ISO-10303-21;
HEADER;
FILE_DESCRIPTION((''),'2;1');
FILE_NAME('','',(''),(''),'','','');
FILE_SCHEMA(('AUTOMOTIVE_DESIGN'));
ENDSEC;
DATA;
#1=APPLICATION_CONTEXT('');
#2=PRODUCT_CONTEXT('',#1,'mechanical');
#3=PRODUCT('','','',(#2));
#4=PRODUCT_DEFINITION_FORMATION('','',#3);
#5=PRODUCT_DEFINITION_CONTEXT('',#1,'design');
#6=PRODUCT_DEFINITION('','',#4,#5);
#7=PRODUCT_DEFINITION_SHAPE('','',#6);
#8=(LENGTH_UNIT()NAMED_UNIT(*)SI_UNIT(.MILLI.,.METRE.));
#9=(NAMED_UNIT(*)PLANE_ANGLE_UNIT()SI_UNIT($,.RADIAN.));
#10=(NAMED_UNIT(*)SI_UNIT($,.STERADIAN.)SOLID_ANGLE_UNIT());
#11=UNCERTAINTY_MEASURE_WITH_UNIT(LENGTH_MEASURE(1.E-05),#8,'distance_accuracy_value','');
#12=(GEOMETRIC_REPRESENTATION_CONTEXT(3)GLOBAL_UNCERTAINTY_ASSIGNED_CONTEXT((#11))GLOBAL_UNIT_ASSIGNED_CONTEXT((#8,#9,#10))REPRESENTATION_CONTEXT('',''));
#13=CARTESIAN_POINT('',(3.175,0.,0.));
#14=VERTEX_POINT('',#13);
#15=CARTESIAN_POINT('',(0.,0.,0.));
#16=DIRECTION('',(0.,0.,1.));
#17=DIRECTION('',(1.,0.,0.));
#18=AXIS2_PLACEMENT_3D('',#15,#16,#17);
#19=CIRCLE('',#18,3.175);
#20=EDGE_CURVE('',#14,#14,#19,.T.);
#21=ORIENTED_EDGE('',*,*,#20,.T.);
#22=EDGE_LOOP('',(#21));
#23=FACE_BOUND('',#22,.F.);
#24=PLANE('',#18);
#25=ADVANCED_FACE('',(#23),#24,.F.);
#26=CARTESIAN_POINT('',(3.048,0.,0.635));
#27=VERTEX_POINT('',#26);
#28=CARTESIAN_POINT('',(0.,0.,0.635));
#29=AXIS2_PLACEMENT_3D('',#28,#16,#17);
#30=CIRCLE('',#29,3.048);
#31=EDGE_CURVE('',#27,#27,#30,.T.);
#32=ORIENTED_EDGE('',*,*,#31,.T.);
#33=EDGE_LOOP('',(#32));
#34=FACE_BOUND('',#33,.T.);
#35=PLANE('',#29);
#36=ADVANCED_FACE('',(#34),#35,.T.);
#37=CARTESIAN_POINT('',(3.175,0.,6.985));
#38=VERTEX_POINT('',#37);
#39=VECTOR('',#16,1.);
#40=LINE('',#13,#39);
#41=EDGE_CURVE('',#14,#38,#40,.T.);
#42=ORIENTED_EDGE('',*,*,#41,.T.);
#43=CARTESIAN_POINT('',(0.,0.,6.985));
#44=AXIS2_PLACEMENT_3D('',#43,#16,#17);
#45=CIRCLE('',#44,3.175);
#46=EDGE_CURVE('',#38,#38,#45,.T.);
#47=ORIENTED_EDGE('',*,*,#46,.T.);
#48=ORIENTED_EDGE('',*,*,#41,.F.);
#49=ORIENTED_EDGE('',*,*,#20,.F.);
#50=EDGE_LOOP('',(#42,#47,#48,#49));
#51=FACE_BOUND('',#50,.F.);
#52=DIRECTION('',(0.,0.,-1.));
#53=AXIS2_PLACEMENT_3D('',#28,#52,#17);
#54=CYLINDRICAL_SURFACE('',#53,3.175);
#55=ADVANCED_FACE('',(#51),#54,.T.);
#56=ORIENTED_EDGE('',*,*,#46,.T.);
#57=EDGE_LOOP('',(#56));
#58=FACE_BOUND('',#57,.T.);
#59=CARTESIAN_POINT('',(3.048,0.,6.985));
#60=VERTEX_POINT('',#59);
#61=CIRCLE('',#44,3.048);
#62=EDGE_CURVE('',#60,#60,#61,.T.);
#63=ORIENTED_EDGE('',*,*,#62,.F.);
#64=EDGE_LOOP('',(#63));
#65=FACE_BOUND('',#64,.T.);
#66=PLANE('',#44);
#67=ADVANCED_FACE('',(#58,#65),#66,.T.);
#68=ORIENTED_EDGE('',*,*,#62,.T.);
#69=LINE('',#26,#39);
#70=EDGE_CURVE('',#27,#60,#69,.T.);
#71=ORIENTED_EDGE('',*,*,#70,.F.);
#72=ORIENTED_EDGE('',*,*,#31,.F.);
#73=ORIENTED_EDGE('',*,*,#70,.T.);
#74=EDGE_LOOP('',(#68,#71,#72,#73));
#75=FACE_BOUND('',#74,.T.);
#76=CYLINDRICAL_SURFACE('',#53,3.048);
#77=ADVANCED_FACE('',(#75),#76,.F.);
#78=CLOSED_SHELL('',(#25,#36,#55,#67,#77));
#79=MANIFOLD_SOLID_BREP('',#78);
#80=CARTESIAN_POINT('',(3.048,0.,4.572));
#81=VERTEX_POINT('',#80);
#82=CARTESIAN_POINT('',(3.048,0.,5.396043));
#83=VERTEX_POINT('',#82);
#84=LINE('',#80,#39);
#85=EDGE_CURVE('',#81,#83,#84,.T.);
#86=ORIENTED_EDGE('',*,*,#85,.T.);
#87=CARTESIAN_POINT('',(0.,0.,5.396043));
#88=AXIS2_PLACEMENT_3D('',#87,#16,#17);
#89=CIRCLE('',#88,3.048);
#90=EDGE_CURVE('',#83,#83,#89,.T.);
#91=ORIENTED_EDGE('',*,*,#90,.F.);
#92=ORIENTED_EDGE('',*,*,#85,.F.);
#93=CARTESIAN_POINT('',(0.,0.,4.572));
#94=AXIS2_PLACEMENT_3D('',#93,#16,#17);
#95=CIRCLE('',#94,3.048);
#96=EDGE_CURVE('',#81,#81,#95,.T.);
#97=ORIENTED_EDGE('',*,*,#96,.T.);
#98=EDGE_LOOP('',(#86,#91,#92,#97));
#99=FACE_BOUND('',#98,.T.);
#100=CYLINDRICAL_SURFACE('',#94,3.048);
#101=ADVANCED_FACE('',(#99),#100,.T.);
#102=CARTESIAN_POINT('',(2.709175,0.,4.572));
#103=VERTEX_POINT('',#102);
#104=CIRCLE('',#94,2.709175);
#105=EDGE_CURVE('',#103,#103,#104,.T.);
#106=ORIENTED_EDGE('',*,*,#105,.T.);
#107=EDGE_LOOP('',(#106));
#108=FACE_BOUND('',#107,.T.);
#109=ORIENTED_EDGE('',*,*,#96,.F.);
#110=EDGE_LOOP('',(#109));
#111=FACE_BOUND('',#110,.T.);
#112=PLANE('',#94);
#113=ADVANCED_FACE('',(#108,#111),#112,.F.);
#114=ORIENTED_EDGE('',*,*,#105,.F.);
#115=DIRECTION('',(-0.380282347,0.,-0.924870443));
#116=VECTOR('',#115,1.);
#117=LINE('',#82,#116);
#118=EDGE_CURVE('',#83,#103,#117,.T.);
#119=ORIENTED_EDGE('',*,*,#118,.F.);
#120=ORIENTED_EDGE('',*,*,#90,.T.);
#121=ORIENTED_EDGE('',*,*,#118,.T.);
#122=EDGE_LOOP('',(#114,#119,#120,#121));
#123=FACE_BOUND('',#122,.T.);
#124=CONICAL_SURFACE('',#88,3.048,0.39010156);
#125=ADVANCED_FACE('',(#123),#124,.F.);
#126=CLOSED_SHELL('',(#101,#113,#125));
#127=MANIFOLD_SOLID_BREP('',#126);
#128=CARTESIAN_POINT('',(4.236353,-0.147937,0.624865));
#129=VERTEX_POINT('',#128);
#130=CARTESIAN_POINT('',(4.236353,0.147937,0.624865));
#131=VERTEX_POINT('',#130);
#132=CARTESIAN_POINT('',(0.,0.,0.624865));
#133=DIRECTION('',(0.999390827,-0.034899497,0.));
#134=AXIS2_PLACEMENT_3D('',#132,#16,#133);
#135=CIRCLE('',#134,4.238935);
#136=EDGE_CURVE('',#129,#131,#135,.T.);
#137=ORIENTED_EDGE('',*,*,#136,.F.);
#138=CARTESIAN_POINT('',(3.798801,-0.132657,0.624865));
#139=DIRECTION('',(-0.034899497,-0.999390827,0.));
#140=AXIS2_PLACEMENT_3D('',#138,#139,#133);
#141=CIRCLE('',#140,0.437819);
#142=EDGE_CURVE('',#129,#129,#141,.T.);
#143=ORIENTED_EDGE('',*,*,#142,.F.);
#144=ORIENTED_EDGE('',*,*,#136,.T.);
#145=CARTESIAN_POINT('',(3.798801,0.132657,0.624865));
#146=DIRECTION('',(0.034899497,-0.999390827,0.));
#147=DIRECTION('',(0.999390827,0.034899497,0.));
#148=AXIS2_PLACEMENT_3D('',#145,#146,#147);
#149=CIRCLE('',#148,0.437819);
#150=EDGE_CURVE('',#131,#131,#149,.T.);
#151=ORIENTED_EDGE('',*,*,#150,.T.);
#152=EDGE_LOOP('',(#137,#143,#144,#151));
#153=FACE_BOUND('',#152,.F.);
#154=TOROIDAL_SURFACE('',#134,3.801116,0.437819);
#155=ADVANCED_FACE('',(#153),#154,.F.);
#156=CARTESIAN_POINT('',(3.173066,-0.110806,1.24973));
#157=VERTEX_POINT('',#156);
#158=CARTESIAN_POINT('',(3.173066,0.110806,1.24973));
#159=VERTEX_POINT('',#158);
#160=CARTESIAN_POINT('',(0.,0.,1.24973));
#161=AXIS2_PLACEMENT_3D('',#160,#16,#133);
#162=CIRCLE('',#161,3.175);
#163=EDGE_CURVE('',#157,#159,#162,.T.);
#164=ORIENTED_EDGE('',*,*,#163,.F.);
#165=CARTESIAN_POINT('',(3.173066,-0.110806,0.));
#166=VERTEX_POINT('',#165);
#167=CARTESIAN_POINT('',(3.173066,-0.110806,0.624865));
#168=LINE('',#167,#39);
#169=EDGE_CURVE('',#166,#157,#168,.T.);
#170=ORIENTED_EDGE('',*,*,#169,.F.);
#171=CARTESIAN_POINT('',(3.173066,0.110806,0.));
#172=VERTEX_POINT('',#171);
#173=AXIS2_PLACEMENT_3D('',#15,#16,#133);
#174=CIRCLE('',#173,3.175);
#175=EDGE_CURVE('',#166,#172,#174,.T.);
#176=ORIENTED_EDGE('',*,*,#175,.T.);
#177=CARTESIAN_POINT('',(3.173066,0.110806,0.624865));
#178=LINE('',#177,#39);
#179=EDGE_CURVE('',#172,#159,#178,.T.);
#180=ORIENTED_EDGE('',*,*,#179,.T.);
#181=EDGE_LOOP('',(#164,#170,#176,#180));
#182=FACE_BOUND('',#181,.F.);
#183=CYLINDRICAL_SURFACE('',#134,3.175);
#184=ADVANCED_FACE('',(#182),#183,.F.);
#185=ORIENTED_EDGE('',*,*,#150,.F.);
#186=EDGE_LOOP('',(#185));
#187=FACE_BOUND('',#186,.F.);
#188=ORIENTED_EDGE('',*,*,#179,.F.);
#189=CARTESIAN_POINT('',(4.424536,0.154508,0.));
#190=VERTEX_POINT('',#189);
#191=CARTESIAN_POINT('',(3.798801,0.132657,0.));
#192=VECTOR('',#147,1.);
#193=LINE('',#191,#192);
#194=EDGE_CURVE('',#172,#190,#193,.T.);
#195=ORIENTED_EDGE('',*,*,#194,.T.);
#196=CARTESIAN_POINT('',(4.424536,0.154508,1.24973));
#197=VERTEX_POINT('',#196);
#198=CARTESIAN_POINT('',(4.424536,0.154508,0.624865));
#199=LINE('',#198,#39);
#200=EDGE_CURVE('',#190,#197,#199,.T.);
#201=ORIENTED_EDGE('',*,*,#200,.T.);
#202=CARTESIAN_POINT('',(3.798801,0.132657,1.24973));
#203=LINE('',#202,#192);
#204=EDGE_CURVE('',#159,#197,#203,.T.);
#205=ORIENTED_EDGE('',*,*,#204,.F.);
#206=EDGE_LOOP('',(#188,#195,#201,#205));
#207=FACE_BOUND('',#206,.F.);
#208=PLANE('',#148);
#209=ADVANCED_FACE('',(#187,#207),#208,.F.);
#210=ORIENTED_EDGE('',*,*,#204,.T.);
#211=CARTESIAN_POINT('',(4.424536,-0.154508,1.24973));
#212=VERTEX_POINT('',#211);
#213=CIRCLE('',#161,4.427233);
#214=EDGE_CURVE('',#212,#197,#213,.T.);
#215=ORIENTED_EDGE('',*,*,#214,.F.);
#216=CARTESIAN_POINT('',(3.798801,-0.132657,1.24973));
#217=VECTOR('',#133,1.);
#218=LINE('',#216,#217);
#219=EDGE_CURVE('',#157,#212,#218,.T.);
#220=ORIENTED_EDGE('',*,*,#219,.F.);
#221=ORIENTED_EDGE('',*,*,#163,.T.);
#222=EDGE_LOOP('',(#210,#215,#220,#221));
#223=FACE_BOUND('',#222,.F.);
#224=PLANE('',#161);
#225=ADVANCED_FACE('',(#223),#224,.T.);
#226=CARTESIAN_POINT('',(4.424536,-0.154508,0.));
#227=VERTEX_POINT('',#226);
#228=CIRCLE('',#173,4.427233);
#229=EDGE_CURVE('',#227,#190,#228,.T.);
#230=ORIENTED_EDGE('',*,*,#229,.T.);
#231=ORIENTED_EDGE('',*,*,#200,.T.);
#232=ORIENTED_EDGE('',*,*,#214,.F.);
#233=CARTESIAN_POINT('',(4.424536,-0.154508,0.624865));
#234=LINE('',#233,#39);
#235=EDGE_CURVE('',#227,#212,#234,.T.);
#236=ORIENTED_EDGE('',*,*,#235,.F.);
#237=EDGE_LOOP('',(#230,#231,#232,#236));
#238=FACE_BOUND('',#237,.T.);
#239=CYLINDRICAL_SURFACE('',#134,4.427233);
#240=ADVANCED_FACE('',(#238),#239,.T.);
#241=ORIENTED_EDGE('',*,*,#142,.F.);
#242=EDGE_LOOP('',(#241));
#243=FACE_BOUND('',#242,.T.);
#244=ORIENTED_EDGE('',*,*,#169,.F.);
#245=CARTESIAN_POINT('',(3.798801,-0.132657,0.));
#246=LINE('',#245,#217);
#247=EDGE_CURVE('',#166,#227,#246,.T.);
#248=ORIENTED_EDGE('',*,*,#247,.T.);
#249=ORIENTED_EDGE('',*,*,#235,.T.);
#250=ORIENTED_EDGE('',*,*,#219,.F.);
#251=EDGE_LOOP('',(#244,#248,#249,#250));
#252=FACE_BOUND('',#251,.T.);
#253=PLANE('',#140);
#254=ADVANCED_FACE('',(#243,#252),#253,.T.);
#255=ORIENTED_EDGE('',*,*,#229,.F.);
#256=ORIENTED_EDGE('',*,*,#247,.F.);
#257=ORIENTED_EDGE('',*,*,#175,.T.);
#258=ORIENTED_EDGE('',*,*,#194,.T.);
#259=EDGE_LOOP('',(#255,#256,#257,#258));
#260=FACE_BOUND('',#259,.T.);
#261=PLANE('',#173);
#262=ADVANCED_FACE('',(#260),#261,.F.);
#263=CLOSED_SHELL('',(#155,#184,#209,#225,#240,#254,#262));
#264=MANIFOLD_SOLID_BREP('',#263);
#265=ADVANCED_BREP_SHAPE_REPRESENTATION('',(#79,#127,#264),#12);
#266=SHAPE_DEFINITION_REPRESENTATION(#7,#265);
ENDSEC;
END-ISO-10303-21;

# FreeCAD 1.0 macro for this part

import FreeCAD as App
import Part
import Sketcher
from FreeCAD import Vector
Q = App.Units.Quantity

doc = App.newDocument("Part")
body = doc.addObject("PartDesign::Body", "Body")

# Sketch on XY plane
sketch1 = body.newObject("Sketcher::SketchObject", "Sketch")
sketch1.AttachmentSupport = (doc.getObject("XY_Plane"), [""])
sketch1.MapMode = "FlatFace"
sketch1.addGeometry(Part.Circle(Vector(0, 0, 0), Vector(0, 0, 1), 3.2), False)
sketch1.addConstraint(Sketcher.Constraint("Coincident", 0, 3, -1, 1))
sketch1.addConstraint(Sketcher.Constraint("Diameter", 0, Q("0.25 in")))
pad1 = body.newObject("PartDesign::Pad", "Pad")
pad1.Profile = sketch1
pad1.Length = Q("0.025 in")

# Sketch on XY plane
sketch2 = body.newObject("Sketcher::SketchObject", "Sketch001")
sketch2.AttachmentSupport = (doc.getObject("XY_Plane"), [""])
sketch2.MapMode = "FlatFace"
sketch2.AttachmentOffset = App.Placement(Vector(0, 0, 0.025 * 25.4), App.Rotation())
sketch2.addGeometry(Part.Circle(Vector(0, 0, 0), Vector(0, 0, 1), 3.2), False)
sketch2.addGeometry(Part.Circle(Vector(0, 0, 0), Vector(0, 0, 1), 3), False)
sketch2.addConstraint(Sketcher.Constraint("Coincident", 0, 3, -1, 1))
sketch2.addConstraint(Sketcher.Constraint("Coincident", 1, 3, -1, 1))
sketch2.addConstraint(Sketcher.Constraint("Diameter", 0, Q("0.25 in")))
sketch2.addConstraint(Sketcher.Constraint("Diameter", 1, Q("0.24 in")))
pad2 = body.newObject("PartDesign::Pad", "Pad001")
pad2.Profile = sketch2
pad2.Length = Q("0.25 in")
body2 = doc.addObject("PartDesign::Body", "Body001")

# Sketch on XZ plane
sketch3 = body2.newObject("Sketcher::SketchObject", "Sketch002")
sketch3.AttachmentSupport = (doc.getObject("XZ_Plane001"), [""])
sketch3.MapMode = "FlatFace"
sketch3.addGeometry(Part.LineSegment(Vector(3.05, 4.57, 0), Vector(3.05, 5.4, 0)), False)
sketch3.addGeometry(Part.LineSegment(Vector(3.05, 5.4, 0), Vector(2.71, 4.57, 0)), False)
sketch3.addGeometry(Part.LineSegment(Vector(2.71, 4.57, 0), Vector(3.05, 4.57, 0)), False)
sketch3.addConstraint(Sketcher.Constraint("Coincident", 0, 2, 1, 1))
sketch3.addConstraint(Sketcher.Constraint("Coincident", 1, 2, 2, 1))
sketch3.addConstraint(Sketcher.Constraint("Coincident", 2, 2, 0, 1))
sketch3.addConstraint(Sketcher.Constraint("Vertical", 0))
sketch3.addConstraint(Sketcher.Constraint("Horizontal", 2))
sketch3.addConstraint(Sketcher.Constraint("DistanceX", -1, 1, 0, 2, Q("0.12 in")))
sketch3.addConstraint(Sketcher.Constraint("DistanceY", -1, 1, 1, 2, Q("0.18 in")))
sketch3.addConstraint(Sketcher.Constraint("DistanceX", 2, 1, 2, 2, Q("0.338825 mm")))
sketch3.addConstraint(Sketcher.Constraint("DistanceY", 0, 1, 0, 2, Q("0.824043 mm")))
revolution = body2.newObject("PartDesign::Revolution", "Revolution")
revolution.Profile = sketch3
revolution.ReferenceAxis = (sketch3, ["V_Axis"])
revolution.Angle = 360
body3 = doc.addObject("PartDesign::Body", "Body002")

# Sketch on an angled plane
sketch4 = body3.newObject("Sketcher::SketchObject", "Sketch003")
sketch4.Placement = App.Placement(Vector(0, 0, 0), App.Rotation(Vector(0.999390827, -0.034899497, 0), Vector(0, 0, 1), Vector(-0.034899497, -0.999390827, 0), "ZXY"))
sketch4.addGeometry(Part.LineSegment(Vector(3.17, 1.25, 0), Vector(3.17, 0, 0)), False)
sketch4.addGeometry(Part.LineSegment(Vector(3.17, 0, 0), Vector(4.43, 0, 0)), False)
sketch4.addGeometry(Part.LineSegment(Vector(4.43, 0, 0), Vector(4.43, 1.25, 0)), False)
sketch4.addGeometry(Part.LineSegment(Vector(4.43, 1.25, 0), Vector(3.17, 1.25, 0)), False)
sketch4.addGeometry(Part.Circle(Vector(3.8, 0.62, 0), Vector(0, 0, 1), 0.44), False)
sketch4.addConstraint(Sketcher.Constraint("Coincident", 0, 2, 1, 1))
sketch4.addConstraint(Sketcher.Constraint("Coincident", 1, 2, 2, 1))
sketch4.addConstraint(Sketcher.Constraint("Coincident", 2, 2, 3, 1))
sketch4.addConstraint(Sketcher.Constraint("Coincident", 3, 2, 0, 1))
sketch4.addConstraint(Sketcher.Constraint("Vertical", 0))
sketch4.addConstraint(Sketcher.Constraint("Horizontal", 1))
sketch4.addConstraint(Sketcher.Constraint("Vertical", 2))
sketch4.addConstraint(Sketcher.Constraint("Horizontal", 3))
sketch4.addConstraint(Sketcher.Constraint("PointOnObject", 0, 2, -1))
sketch4.addConstraint(Sketcher.Constraint("DistanceX", -1, 1, 0, 2, Q("0.125 in")))
sketch4.addConstraint(Sketcher.Constraint("Diameter", 4, Q("0.875637 mm")))
sketch4.addConstraint(Sketcher.Constraint("DistanceY", 0, 2, 0, 1, Q("1.24973 mm")))
sketch4.addConstraint(Sketcher.Constraint("DistanceX", 1, 1, 1, 2, Q("1.252233 mm")))
sketch4.addConstraint(Sketcher.Constraint("DistanceX", -1, 1, 4, 3, Q("3.801116 mm")))
sketch4.addConstraint(Sketcher.Constraint("DistanceY", -1, 1, 4, 3, Q("0.624865 mm")))
revolution2 = body3.newObject("PartDesign::Revolution", "Revolution001")
revolution2.Profile = sketch4
revolution2.ReferenceAxis = (sketch4, ["V_Axis"])
revolution2.Angle = 4

doc.recompute()
